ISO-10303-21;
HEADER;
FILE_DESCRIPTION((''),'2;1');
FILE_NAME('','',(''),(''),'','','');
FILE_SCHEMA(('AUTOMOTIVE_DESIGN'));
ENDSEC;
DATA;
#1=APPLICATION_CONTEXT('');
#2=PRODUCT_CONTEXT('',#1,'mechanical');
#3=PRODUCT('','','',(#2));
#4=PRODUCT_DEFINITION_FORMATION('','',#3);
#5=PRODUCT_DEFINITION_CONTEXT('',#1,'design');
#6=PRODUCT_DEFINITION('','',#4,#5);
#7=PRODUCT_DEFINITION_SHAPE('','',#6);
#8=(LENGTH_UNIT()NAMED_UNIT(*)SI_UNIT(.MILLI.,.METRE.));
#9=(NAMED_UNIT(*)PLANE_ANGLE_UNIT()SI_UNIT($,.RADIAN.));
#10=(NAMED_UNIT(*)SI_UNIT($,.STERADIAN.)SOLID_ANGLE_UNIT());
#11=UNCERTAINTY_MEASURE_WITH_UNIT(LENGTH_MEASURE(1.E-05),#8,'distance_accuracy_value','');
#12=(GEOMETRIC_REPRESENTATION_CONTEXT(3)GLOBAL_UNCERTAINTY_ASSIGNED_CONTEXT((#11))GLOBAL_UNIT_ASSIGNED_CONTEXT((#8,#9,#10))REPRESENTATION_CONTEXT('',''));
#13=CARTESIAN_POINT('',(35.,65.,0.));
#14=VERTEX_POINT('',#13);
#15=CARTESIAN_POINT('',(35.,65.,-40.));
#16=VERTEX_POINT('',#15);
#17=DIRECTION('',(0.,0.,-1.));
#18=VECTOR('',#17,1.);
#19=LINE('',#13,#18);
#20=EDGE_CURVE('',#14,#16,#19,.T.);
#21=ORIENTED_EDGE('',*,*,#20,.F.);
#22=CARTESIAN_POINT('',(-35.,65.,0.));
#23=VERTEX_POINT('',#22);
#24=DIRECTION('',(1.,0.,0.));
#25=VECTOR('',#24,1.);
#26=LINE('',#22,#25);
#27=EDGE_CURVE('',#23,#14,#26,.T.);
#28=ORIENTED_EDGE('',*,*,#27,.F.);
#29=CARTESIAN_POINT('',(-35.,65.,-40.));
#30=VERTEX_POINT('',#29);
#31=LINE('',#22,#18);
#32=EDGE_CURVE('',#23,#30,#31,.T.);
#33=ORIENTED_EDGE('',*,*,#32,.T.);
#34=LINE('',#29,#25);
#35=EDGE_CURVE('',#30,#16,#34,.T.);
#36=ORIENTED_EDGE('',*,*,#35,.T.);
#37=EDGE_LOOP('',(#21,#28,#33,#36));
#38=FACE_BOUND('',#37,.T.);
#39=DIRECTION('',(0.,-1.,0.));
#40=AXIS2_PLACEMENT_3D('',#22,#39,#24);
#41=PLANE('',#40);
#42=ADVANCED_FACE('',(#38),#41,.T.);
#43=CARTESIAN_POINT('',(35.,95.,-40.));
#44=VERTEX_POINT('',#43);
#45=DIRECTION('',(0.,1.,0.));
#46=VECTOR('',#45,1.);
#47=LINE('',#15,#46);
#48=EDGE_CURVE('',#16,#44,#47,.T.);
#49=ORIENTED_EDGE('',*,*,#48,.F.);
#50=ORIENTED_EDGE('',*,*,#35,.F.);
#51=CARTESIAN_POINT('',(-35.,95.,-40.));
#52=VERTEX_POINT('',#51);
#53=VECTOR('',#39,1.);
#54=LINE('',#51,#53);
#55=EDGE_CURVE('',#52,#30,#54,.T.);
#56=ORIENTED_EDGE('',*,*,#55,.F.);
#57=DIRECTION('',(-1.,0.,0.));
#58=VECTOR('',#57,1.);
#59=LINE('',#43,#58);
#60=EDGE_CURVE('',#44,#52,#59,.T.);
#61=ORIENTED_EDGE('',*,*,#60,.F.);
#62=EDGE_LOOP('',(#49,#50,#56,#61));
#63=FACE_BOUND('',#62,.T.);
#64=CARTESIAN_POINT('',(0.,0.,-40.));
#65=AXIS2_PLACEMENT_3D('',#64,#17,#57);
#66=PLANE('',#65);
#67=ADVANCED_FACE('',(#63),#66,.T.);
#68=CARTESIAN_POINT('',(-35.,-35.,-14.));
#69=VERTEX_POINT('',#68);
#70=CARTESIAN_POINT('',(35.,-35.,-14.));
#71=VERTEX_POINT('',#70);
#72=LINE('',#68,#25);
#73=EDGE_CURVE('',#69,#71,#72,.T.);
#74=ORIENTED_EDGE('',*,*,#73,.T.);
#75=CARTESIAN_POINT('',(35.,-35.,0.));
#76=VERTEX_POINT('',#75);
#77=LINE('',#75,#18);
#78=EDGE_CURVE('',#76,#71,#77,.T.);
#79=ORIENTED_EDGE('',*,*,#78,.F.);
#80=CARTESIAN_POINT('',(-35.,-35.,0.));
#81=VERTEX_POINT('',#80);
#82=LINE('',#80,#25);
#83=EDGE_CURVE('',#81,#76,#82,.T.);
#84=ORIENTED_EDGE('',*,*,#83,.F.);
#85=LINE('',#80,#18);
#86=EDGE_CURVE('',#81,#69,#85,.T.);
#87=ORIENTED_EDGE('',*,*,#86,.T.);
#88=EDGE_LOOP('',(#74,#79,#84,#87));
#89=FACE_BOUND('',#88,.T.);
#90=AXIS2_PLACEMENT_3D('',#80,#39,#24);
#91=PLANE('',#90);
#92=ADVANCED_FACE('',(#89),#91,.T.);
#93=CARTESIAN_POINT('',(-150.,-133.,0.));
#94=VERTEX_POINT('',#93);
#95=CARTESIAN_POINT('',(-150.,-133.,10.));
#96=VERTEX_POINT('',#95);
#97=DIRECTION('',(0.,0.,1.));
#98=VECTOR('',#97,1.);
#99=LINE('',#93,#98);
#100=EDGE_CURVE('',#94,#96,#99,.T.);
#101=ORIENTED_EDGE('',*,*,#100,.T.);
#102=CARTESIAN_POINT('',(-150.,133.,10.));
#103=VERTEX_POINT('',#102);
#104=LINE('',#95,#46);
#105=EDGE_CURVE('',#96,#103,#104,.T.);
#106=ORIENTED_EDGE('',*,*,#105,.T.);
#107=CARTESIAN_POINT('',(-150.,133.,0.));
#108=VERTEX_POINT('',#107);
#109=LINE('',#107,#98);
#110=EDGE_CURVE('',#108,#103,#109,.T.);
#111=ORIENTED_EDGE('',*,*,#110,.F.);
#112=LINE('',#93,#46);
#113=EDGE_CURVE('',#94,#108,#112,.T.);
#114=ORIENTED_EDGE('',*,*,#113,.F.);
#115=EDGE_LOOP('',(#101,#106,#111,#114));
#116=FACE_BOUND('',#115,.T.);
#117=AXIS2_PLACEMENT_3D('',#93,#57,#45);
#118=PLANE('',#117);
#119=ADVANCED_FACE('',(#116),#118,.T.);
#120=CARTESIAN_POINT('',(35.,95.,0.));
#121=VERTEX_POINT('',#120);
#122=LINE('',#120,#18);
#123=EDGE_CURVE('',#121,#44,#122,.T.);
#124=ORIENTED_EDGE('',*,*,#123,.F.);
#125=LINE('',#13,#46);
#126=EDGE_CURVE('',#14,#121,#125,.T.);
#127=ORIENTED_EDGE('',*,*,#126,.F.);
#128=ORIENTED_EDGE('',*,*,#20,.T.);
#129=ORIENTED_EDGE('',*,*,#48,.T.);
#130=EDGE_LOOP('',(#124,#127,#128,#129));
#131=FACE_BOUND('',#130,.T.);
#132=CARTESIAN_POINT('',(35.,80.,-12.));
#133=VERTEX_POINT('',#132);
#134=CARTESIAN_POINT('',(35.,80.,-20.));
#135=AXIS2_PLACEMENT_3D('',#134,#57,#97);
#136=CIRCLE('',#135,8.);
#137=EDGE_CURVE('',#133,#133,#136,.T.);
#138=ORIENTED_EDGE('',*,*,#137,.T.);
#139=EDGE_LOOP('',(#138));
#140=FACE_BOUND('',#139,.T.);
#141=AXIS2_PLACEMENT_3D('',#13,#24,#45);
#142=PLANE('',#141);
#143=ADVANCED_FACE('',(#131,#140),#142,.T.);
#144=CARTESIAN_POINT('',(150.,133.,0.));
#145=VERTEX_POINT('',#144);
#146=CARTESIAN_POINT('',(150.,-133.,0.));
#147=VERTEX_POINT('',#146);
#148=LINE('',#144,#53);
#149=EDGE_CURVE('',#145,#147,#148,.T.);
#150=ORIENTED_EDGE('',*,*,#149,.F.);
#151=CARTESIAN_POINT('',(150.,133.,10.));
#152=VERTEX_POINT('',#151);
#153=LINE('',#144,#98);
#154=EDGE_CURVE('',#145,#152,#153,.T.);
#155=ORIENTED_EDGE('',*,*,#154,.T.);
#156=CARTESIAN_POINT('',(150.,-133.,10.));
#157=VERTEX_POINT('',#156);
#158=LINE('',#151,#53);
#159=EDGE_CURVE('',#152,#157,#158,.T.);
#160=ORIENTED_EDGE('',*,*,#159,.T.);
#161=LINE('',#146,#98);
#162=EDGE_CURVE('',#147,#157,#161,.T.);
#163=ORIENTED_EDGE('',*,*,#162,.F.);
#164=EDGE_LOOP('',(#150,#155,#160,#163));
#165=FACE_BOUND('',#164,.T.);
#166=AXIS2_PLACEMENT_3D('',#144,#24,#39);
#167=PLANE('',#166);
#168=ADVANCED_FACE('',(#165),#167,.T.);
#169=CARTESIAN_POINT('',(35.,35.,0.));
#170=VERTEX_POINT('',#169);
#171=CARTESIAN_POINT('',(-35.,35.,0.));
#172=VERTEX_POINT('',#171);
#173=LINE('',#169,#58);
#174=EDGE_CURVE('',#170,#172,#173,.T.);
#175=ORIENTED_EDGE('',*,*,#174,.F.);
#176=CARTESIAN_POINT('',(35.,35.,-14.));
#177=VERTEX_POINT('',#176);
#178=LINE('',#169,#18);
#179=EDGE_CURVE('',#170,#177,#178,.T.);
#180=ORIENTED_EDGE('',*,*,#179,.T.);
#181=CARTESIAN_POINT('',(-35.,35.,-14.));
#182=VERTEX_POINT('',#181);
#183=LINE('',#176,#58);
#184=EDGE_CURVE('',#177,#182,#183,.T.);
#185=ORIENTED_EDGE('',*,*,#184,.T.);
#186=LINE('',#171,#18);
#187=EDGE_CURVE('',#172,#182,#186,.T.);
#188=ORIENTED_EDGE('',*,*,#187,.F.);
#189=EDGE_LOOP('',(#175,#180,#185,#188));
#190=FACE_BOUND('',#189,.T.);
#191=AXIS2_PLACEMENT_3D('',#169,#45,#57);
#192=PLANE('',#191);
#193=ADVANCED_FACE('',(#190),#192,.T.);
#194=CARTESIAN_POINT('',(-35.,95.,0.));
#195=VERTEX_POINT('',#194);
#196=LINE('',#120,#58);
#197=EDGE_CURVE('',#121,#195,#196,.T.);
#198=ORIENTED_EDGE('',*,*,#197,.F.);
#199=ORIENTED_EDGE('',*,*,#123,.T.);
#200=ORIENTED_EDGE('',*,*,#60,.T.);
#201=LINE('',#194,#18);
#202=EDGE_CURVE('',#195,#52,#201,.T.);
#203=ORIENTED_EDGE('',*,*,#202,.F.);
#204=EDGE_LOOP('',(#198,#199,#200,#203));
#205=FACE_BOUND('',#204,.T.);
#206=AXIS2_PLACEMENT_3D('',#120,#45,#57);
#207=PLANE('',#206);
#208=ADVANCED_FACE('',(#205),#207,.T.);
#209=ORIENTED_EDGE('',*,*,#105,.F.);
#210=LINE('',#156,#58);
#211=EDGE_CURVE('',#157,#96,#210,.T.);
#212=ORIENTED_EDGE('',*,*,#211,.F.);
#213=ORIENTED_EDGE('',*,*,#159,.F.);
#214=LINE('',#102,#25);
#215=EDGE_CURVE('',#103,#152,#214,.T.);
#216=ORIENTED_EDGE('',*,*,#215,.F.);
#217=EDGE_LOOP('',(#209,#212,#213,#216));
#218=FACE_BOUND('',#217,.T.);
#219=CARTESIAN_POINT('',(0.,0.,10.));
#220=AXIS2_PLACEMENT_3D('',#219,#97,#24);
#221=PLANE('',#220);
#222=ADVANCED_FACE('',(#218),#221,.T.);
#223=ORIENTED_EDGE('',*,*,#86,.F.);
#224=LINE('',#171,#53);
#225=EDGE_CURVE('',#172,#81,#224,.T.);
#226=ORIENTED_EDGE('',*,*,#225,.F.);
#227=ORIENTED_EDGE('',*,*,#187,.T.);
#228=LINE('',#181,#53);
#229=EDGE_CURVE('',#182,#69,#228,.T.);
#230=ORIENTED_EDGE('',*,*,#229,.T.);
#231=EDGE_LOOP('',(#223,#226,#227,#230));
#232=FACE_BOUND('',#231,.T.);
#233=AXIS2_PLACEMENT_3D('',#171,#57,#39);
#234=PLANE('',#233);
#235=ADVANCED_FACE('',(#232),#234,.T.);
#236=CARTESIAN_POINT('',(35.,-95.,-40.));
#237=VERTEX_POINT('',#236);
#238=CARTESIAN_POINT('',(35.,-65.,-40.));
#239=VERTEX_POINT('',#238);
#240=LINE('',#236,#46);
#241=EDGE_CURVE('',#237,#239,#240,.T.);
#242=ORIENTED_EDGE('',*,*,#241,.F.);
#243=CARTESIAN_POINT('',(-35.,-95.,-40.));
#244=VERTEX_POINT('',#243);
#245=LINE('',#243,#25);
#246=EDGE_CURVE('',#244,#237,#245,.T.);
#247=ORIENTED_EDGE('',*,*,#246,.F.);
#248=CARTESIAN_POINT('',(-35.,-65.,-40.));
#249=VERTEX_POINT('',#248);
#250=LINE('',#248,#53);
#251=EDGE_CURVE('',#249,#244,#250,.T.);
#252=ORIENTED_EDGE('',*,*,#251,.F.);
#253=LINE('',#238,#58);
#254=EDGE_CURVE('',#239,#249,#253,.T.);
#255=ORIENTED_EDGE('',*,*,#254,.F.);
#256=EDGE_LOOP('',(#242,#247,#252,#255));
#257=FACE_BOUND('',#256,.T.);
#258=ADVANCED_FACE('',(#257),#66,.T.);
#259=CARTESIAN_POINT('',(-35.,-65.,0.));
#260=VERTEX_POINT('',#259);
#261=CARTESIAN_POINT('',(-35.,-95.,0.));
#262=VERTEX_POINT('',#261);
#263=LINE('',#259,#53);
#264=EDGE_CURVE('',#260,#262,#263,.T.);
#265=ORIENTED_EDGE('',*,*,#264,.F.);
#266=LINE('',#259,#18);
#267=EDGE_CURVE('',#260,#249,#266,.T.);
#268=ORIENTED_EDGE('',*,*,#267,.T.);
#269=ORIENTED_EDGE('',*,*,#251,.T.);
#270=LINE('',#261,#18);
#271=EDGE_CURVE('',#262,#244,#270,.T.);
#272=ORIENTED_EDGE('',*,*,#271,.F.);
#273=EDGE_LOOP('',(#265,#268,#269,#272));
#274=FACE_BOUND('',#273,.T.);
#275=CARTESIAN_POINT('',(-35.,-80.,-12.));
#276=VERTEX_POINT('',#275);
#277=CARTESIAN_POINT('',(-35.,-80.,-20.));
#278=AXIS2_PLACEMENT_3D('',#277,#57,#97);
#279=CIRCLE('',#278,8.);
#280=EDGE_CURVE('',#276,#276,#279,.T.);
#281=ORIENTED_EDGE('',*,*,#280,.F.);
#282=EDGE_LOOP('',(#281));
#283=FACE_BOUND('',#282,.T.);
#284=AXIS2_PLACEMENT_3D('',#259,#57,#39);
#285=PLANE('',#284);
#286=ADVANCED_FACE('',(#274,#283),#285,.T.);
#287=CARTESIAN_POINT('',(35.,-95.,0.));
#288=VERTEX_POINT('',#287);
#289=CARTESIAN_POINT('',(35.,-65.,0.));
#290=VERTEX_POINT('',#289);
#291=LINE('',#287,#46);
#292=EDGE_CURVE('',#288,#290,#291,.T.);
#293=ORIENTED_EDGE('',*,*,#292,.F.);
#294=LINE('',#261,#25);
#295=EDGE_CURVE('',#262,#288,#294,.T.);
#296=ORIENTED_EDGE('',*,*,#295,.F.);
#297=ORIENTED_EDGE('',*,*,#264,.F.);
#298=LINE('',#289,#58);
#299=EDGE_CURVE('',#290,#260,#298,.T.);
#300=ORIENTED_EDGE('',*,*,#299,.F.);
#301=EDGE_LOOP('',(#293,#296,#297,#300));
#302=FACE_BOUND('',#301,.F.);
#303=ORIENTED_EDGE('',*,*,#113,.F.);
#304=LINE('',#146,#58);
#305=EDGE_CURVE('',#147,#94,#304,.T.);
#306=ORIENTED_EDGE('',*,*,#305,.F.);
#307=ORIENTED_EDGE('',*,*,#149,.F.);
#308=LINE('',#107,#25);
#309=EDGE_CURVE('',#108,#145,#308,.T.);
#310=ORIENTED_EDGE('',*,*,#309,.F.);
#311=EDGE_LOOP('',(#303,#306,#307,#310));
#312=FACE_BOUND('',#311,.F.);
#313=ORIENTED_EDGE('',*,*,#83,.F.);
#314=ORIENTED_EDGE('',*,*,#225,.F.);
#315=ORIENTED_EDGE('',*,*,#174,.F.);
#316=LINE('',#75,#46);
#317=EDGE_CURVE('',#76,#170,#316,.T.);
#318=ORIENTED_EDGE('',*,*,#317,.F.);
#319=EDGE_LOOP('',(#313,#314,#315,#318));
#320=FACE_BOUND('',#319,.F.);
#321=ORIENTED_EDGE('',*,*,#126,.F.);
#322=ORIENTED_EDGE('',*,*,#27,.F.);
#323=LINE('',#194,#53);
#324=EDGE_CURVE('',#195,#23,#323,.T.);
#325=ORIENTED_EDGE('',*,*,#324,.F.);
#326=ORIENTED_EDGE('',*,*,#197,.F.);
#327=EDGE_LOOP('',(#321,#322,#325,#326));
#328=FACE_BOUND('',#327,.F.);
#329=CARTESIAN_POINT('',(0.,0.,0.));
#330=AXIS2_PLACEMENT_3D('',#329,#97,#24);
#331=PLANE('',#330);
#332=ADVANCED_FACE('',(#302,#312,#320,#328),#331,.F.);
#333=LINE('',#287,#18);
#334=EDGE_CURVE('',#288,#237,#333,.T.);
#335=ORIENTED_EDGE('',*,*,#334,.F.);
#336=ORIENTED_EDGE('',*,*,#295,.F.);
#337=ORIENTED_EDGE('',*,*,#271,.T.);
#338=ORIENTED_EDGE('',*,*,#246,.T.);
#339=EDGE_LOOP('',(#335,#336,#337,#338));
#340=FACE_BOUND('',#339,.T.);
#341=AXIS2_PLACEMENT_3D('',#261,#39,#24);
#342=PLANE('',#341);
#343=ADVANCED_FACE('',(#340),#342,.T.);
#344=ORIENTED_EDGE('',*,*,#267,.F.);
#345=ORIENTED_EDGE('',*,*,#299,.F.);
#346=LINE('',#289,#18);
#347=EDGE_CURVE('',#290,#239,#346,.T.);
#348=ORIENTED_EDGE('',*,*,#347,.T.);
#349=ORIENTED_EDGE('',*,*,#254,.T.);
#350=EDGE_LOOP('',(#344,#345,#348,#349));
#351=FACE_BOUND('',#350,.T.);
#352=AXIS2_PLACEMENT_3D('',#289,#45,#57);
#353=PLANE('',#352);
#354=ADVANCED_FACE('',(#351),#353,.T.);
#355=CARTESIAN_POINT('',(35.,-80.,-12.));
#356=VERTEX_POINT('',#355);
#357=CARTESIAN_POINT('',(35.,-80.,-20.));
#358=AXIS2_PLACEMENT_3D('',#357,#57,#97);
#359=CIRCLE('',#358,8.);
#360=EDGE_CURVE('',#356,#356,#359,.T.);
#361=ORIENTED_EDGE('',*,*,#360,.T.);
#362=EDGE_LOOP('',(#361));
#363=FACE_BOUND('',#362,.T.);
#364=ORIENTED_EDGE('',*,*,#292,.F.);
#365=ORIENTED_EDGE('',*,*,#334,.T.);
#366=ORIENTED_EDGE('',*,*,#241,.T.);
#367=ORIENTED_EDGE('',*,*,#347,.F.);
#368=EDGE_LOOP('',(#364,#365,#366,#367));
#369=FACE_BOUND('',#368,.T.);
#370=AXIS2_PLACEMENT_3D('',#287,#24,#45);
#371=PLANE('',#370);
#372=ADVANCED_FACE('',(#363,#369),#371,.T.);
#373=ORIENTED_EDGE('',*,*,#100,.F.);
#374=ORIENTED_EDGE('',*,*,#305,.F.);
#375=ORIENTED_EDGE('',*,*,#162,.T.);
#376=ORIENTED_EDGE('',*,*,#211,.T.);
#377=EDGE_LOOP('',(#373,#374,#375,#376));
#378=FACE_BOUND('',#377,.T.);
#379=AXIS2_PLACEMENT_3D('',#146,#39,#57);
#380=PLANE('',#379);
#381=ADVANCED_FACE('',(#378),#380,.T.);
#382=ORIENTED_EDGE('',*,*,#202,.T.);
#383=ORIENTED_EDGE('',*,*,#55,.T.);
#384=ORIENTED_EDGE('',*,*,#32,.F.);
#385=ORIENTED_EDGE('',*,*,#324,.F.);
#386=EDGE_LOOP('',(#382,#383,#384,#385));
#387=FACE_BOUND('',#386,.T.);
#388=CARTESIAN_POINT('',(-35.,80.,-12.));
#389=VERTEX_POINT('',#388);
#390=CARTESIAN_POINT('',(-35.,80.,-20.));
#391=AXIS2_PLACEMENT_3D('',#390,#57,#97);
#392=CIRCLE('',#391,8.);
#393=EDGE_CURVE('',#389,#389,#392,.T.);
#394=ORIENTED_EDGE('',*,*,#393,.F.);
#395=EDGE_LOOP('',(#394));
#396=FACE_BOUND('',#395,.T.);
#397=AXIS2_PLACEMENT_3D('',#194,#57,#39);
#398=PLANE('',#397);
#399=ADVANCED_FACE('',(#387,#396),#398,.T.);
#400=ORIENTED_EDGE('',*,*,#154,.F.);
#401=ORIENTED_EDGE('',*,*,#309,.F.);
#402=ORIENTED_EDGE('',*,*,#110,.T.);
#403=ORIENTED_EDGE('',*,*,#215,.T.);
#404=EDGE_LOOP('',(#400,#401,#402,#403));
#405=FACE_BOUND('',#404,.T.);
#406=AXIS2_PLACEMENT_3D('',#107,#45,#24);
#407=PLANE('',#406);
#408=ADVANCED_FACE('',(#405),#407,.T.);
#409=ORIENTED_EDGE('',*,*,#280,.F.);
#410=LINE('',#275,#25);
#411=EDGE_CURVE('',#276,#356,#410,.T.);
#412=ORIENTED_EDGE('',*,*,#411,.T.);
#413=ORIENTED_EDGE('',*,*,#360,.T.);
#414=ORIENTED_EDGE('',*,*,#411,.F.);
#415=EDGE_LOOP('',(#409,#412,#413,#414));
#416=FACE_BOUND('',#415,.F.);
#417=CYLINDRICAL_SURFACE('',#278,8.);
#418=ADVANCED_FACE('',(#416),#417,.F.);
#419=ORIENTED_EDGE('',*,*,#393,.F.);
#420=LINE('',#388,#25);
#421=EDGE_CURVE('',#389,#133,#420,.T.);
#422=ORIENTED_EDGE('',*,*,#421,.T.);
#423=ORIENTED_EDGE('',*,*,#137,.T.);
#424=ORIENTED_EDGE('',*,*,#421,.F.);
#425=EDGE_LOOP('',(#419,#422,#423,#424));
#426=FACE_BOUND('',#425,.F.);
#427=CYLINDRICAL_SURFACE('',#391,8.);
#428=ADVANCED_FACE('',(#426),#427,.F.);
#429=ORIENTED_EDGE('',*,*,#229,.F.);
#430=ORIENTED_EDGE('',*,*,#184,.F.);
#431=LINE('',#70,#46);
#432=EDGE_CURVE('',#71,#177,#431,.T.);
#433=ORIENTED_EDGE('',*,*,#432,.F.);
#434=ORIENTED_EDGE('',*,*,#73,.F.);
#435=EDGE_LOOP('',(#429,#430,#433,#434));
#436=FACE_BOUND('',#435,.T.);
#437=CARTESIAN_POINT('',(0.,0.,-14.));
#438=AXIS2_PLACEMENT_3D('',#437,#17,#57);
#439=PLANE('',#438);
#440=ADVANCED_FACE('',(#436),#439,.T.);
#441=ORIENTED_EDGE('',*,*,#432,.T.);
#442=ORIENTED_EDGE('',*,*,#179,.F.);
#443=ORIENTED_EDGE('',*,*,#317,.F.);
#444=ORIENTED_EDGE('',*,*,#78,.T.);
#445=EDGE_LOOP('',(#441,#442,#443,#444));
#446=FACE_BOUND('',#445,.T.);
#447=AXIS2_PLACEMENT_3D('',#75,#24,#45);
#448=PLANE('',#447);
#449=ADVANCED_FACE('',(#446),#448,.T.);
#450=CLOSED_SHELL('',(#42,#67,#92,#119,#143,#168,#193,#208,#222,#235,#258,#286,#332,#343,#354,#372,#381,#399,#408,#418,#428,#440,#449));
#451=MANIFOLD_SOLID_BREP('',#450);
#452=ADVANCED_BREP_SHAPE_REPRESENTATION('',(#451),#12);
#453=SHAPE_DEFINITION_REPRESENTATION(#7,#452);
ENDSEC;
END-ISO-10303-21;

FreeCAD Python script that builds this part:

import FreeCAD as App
import Part
import Sketcher


def add_polygon(sketch, points):
    """Adds a closed chain of lines whose ends are joined by coincident constraints."""
    first, n = sketch.GeometryCount, len(points)
    for a, b in zip(points, points[1:] + points[:1]):
        sketch.addGeometry(Part.LineSegment(App.Vector(*a, 0), App.Vector(*b, 0)), False)
    for i in range(n):
        sketch.addConstraint(Sketcher.Constraint("Coincident", first + i, 2, first + (i + 1) % n, 1))

doc = App.newDocument("Part")
params = doc.addObject("Spreadsheet::Sheet", "Params")
for row, (alias, value) in enumerate([
    ("sketch1_width", "300 mm"),
    ("sketch1_height", "266 mm"),
    ("pad1_length", "10 mm"),
    ("sketch2_width", "70 mm"),
    ("pad2_length", "14 mm"),
    ("sketch3_width", "70 mm"),
    ("sketch3_height", "30 mm"),
    ("pad3_length", "40 mm"),
    ("sketch4_diameter", "16 mm"),
    ("sketch5_diameter", "16 mm"),
], start=1):
    params.set(f"A{row}", alias)
    params.set(f"B{row}", "=" + value)
    params.setAlias(f"B{row}", alias)

body = doc.addObject("PartDesign::Body", "Body")

# Sketch on XY plane
sketch1 = doc.addObject("Sketcher::SketchObject", "Sketch")
body.addObject(sketch1)
sketch1.AttachmentSupport = (doc.XY_Plane, [""])
sketch1.MapMode = "FlatFace"
add_polygon(sketch1, [(-150, -133), (150, -133), (150, 133), (-150, 133)])  # lines 0-3
sketch1.addConstraint([
    Sketcher.Constraint("Horizontal", 0),
    Sketcher.Constraint("Vertical", 1),
    Sketcher.Constraint("Horizontal", 2),
    Sketcher.Constraint("Vertical", 3),
    Sketcher.Constraint("Symmetric", 0, 2, 2, 2, -1, 1),
    Sketcher.Constraint("DistanceX", 0, 1, 0, 2, 300.0),
    Sketcher.Constraint("DistanceY", 1, 1, 1, 2, 266.0),
])
sketch1.setExpression("Constraints[9]", "Params.sketch1_width")
sketch1.setExpression("Constraints[10]", "Params.sketch1_height")
pad1 = doc.addObject("PartDesign::Pad", "Pad")
body.addObject(pad1)
pad1.Profile = sketch1
pad1.setExpression("Length", "Params.pad1_length")

# Sketch on XY plane
sketch2 = doc.addObject("Sketcher::SketchObject", "Sketch001")
body.addObject(sketch2)
sketch2.AttachmentSupport = (doc.XY_Plane, [""])
sketch2.MapMode = "FlatFace"
add_polygon(sketch2, [(35, -35), (-35, -35), (-35, 35), (35, 35)])  # lines 0-3
sketch2.addConstraint([
    Sketcher.Constraint("Horizontal", 0),
    Sketcher.Constraint("Vertical", 1),
    Sketcher.Constraint("Horizontal", 2),
    Sketcher.Constraint("Vertical", 3),
    Sketcher.Constraint("Symmetric", 0, 2, 2, 2, -1, 1),
    Sketcher.Constraint("Equal", 2, 1),
    Sketcher.Constraint("DistanceX", 0, 2, 0, 1, 70.0),
])
sketch2.setExpression("Constraints[10]", "Params.sketch2_width")
pad2 = doc.addObject("PartDesign::Pad", "Pad001")
body.addObject(pad2)
pad2.Profile = sketch2
pad2.setExpression("Length", "Params.pad2_length")
pad2.Reversed = True

# Sketch on XY plane
sketch3 = doc.addObject("Sketcher::SketchObject", "Sketch002")
body.addObject(sketch3)
sketch3.AttachmentSupport = (doc.XY_Plane, [""])
sketch3.MapMode = "FlatFace"
add_polygon(sketch3, [(35, -95), (-35, -95), (-35, -65), (35, -65)])  # lines 0-3
add_polygon(sketch3, [(35, 65), (-35, 65), (-35, 95), (35, 95)])  # lines 4-7
sketch3.addConstraint([
    Sketcher.Constraint("Horizontal", 0),
    Sketcher.Constraint("Vertical", 1),
    Sketcher.Constraint("Horizontal", 2),
    Sketcher.Constraint("Vertical", 3),
    Sketcher.Constraint("Horizontal", 4),
    Sketcher.Constraint("Vertical", 5),
    Sketcher.Constraint("Horizontal", 6),
    Sketcher.Constraint("Vertical", 7),
    Sketcher.Constraint("Symmetric", 2, 2, 4, 2, -1, 1),
    Sketcher.Constraint("Symmetric", 0, 2, 6, 2, -1, 1),
    Sketcher.Constraint("Vertical", 1, 2, 4, 2),
    Sketcher.Constraint("DistanceX", 0, 2, 0, 1, 70.0),
    Sketcher.Constraint("DistanceY", 1, 1, 1, 2, 30.0),
    Sketcher.Constraint("DistanceY", 0, 2, -1, 1, 95.0),
])
sketch3.setExpression("Constraints[19]", "Params.sketch3_width")
sketch3.setExpression("Constraints[20]", "Params.sketch3_height")
pad3 = doc.addObject("PartDesign::Pad", "Pad002")
body.addObject(pad3)
pad3.Profile = sketch3
pad3.setExpression("Length", "Params.pad3_length")
pad3.Reversed = True

# Sketch on YZ plane
sketch4 = doc.addObject("Sketcher::SketchObject", "Sketch003")
body.addObject(sketch4)
sketch4.AttachmentSupport = (doc.YZ_Plane, [""])
sketch4.MapMode = "FlatFace"
sketch4.AttachmentOffset = App.Placement(App.Vector(0, 0, -35), App.Rotation())
sketch4.addGeometry(Part.Circle(App.Vector(80, -20, 0), App.Vector(0, 0, 1), 8), False)
sketch4.addConstraint([
    Sketcher.Constraint("Diameter", 0, 16.0),
    Sketcher.Constraint("DistanceY", 0, 3, -1, 1, 20.0),
    Sketcher.Constraint("DistanceX", -1, 1, 0, 3, 80.0),
])
sketch4.setExpression("Constraints[0]", "Params.sketch4_diameter")
pocket1 = doc.addObject("PartDesign::Pocket", "Pocket")
body.addObject(pocket1)
pocket1.Profile = sketch4
pocket1.Type = "ThroughAll"
pocket1.Reversed = True

# Sketch on YZ plane
sketch5 = doc.addObject("Sketcher::SketchObject", "Sketch004")
body.addObject(sketch5)
sketch5.AttachmentSupport = (doc.YZ_Plane, [""])
sketch5.MapMode = "FlatFace"
sketch5.AttachmentOffset = App.Placement(App.Vector(0, 0, -35), App.Rotation())
sketch5.addGeometry(Part.Circle(App.Vector(-80, -20, 0), App.Vector(0, 0, 1), 8), False)
sketch5.addConstraint([
    Sketcher.Constraint("Diameter", 0, 16.0),
    Sketcher.Constraint("DistanceY", 0, 3, -1, 1, 20.0),
    Sketcher.Constraint("DistanceX", 0, 3, -1, 1, 80.0),
])
sketch5.setExpression("Constraints[0]", "Params.sketch5_diameter")
pocket2 = doc.addObject("PartDesign::Pocket", "Pocket001")
body.addObject(pocket2)
pocket2.Profile = sketch5
pocket2.Type = "ThroughAll"
pocket2.Reversed = True

doc.recompute()
